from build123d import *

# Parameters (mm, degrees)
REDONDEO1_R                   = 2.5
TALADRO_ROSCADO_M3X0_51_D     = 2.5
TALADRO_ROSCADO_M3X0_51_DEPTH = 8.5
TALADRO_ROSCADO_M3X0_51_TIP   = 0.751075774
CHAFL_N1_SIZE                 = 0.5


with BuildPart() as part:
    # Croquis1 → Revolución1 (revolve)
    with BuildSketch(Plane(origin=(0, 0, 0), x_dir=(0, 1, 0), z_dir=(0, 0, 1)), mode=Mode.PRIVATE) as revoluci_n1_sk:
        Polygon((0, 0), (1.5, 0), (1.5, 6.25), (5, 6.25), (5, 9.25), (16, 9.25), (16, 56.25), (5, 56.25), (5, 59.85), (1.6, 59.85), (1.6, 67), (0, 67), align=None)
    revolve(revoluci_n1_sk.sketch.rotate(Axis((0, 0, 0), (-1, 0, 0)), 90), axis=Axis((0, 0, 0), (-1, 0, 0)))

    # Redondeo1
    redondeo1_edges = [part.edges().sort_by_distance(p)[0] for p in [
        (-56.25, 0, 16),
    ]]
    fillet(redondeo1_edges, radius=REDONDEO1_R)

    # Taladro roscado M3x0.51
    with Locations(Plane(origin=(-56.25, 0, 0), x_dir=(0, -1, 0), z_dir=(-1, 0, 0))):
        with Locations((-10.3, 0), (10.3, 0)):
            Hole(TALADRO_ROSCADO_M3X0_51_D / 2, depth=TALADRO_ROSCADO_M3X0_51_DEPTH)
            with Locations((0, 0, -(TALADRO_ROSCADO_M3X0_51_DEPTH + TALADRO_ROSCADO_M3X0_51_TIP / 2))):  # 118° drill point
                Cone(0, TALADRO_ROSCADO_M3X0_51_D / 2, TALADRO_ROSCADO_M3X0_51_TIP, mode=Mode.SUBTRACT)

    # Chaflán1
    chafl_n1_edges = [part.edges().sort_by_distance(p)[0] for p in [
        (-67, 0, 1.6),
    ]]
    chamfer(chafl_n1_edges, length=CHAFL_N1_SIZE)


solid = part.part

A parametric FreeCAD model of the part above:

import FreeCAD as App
import Part
import Sketcher
from FreeCAD import Vector
Q = App.Units.Quantity


def edges_at(feature, points):
    """Names of the edges that pass closest to the given points."""
    edges = feature.Shape.Edges
    near = lambda p: min(range(len(edges)), key=lambda i: edges[i].distToShape(Part.Vertex(*p))[0])
    return sorted({f"Edge{near(p) + 1}" for p in points})


def add_polygon(sketch, points):
    """Adds a closed chain of lines whose ends are joined by coincident constraints."""
    first, n = sketch.GeometryCount, len(points)
    for a, b in zip(points, points[1:] + points[:1]):
        sketch.addGeometry(Part.LineSegment(App.Vector(*a, 0), App.Vector(*b, 0)), False)
    for i in range(n):
        sketch.addConstraint(Sketcher.Constraint("Coincident", first + i, 2, first + (i + 1) % n, 1))

doc = App.newDocument("Part")
body = doc.addObject("PartDesign::Body", "Body")

sketch1 = body.newObject("Sketcher::SketchObject", "Sketch")
sketch1.AttachmentSupport = (doc.getObject("XY_Plane"), [""])
sketch1.MapMode = "FlatFace"
add_polygon(sketch1, [(0, 0), (0, 1.5), (-6.25, 1.5), (-6.25, 5), (-9.25, 5), (-9.25, 16), (-56.25, 16), (-56.25, 5), (-59.85, 5), (-59.85, 1.6), (-67, 1.6), (-67, 0)])
sketch1.addConstraint(Sketcher.Constraint("Vertical", 0))
sketch1.addConstraint(Sketcher.Constraint("Horizontal", 1))
sketch1.addConstraint(Sketcher.Constraint("Vertical", 2))
sketch1.addConstraint(Sketcher.Constraint("Horizontal", 3))
sketch1.addConstraint(Sketcher.Constraint("Vertical", 4))
sketch1.addConstraint(Sketcher.Constraint("Horizontal", 5))
sketch1.addConstraint(Sketcher.Constraint("Vertical", 6))
sketch1.addConstraint(Sketcher.Constraint("Horizontal", 7))
sketch1.addConstraint(Sketcher.Constraint("Vertical", 8))
sketch1.addConstraint(Sketcher.Constraint("Horizontal", 9))
sketch1.addConstraint(Sketcher.Constraint("Vertical", 10))
sketch1.addConstraint(Sketcher.Constraint("Horizontal", 11))
sketch1.addConstraint(Sketcher.Constraint("Coincident", 11, 2, -1, 1))
sketch1.addConstraint(Sketcher.Constraint("Horizontal", 3, 2, 6, 2))
sketch1.addConstraint(Sketcher.Constraint("DistanceX", 3, 2, 3, 1, Q("3 mm")))
sketch1.addConstraint(Sketcher.Constraint("DistanceX", 5, 2, 5, 1, Q("47 mm")))
sketch1.addConstraint(Sketcher.Constraint("DistanceX", 11, 1, 11, 2, Q("67 mm")))
sketch1.addConstraint(Sketcher.Constraint("DistanceY", 4, 1, 4, 2, Q("11 mm")))
sketch1.addConstraint(Sketcher.Constraint("DistanceX", 7, 2, 7, 1, Q("3.6 mm")))
sketch1.addConstraint(Sketcher.Constraint("DistanceY", 0, 1, 0, 2, Q("1.5 mm")))
sketch1.addConstraint(Sketcher.Constraint("DistanceY", 2, 1, 2, 2, Q("3.5 mm")))
sketch1.addConstraint(Sketcher.Constraint("DistanceY", 8, 2, 8, 1, Q("3.4 mm")))
sketch1.addConstraint(Sketcher.Constraint("DistanceX", 1, 2, 1, 1, Q("6.25 mm")))
revolution = body.newObject("PartDesign::Revolution", "Revolution")
revolution.Profile = sketch1
revolution.ReferenceAxis = (sketch1, ["H_Axis"])
revolution.Angle = 360
doc.recompute()

fillet = body.newObject("PartDesign::Fillet", "Fillet")
fillet.Base = (revolution, edges_at(revolution, [(-56.25, 0, 16)]))
fillet.Radius = 2.5

sketch2 = body.newObject("Sketcher::SketchObject", "Sketch001")
sketch2.AttachmentSupport = (doc.getObject("YZ_Plane"), [""])
sketch2.MapMode = "FlatFace"
sketch2.AttachmentOffset = App.Placement(Vector(0, 0, -56.25), App.Rotation())
sketch2.addGeometry(Part.Circle(Vector(10.3, 0, 0), Vector(0, 0, 1), 1.25), False)
sketch2.addGeometry(Part.Circle(Vector(-10.3, 0, 0), Vector(0, 0, 1), 1.25), False)
sketch2.addConstraint(Sketcher.Constraint("Equal", 0, 1))
sketch2.addConstraint(Sketcher.Constraint("Symmetric", 0, 3, 1, 3, -1, 1))
sketch2.addConstraint(Sketcher.Constraint("PointOnObject", 0, 3, -1))
sketch2.addConstraint(Sketcher.Constraint("Diameter", 0, Q("2.5 mm")))
sketch2.addConstraint(Sketcher.Constraint("DistanceX", -1, 1, 0, 3, Q("10.3 mm")))
doc.recompute()
hole = body.newObject("PartDesign::Hole", "Hole")
hole.Profile = sketch2
hole.ThreadType = "None"
hole.Diameter = 2.5
hole.DepthType = "Dimension"
hole.Depth = 8.5
hole.DrillPoint = "Angled"
hole.DrillPointAngle = 118
hole.Reversed = True
doc.recompute()

chamfer = body.newObject("PartDesign::Chamfer", "Chamfer")
chamfer.Base = (hole, edges_at(hole, [(-67, 0, 1.6)]))
chamfer.Size = 0.5

doc.recompute()
